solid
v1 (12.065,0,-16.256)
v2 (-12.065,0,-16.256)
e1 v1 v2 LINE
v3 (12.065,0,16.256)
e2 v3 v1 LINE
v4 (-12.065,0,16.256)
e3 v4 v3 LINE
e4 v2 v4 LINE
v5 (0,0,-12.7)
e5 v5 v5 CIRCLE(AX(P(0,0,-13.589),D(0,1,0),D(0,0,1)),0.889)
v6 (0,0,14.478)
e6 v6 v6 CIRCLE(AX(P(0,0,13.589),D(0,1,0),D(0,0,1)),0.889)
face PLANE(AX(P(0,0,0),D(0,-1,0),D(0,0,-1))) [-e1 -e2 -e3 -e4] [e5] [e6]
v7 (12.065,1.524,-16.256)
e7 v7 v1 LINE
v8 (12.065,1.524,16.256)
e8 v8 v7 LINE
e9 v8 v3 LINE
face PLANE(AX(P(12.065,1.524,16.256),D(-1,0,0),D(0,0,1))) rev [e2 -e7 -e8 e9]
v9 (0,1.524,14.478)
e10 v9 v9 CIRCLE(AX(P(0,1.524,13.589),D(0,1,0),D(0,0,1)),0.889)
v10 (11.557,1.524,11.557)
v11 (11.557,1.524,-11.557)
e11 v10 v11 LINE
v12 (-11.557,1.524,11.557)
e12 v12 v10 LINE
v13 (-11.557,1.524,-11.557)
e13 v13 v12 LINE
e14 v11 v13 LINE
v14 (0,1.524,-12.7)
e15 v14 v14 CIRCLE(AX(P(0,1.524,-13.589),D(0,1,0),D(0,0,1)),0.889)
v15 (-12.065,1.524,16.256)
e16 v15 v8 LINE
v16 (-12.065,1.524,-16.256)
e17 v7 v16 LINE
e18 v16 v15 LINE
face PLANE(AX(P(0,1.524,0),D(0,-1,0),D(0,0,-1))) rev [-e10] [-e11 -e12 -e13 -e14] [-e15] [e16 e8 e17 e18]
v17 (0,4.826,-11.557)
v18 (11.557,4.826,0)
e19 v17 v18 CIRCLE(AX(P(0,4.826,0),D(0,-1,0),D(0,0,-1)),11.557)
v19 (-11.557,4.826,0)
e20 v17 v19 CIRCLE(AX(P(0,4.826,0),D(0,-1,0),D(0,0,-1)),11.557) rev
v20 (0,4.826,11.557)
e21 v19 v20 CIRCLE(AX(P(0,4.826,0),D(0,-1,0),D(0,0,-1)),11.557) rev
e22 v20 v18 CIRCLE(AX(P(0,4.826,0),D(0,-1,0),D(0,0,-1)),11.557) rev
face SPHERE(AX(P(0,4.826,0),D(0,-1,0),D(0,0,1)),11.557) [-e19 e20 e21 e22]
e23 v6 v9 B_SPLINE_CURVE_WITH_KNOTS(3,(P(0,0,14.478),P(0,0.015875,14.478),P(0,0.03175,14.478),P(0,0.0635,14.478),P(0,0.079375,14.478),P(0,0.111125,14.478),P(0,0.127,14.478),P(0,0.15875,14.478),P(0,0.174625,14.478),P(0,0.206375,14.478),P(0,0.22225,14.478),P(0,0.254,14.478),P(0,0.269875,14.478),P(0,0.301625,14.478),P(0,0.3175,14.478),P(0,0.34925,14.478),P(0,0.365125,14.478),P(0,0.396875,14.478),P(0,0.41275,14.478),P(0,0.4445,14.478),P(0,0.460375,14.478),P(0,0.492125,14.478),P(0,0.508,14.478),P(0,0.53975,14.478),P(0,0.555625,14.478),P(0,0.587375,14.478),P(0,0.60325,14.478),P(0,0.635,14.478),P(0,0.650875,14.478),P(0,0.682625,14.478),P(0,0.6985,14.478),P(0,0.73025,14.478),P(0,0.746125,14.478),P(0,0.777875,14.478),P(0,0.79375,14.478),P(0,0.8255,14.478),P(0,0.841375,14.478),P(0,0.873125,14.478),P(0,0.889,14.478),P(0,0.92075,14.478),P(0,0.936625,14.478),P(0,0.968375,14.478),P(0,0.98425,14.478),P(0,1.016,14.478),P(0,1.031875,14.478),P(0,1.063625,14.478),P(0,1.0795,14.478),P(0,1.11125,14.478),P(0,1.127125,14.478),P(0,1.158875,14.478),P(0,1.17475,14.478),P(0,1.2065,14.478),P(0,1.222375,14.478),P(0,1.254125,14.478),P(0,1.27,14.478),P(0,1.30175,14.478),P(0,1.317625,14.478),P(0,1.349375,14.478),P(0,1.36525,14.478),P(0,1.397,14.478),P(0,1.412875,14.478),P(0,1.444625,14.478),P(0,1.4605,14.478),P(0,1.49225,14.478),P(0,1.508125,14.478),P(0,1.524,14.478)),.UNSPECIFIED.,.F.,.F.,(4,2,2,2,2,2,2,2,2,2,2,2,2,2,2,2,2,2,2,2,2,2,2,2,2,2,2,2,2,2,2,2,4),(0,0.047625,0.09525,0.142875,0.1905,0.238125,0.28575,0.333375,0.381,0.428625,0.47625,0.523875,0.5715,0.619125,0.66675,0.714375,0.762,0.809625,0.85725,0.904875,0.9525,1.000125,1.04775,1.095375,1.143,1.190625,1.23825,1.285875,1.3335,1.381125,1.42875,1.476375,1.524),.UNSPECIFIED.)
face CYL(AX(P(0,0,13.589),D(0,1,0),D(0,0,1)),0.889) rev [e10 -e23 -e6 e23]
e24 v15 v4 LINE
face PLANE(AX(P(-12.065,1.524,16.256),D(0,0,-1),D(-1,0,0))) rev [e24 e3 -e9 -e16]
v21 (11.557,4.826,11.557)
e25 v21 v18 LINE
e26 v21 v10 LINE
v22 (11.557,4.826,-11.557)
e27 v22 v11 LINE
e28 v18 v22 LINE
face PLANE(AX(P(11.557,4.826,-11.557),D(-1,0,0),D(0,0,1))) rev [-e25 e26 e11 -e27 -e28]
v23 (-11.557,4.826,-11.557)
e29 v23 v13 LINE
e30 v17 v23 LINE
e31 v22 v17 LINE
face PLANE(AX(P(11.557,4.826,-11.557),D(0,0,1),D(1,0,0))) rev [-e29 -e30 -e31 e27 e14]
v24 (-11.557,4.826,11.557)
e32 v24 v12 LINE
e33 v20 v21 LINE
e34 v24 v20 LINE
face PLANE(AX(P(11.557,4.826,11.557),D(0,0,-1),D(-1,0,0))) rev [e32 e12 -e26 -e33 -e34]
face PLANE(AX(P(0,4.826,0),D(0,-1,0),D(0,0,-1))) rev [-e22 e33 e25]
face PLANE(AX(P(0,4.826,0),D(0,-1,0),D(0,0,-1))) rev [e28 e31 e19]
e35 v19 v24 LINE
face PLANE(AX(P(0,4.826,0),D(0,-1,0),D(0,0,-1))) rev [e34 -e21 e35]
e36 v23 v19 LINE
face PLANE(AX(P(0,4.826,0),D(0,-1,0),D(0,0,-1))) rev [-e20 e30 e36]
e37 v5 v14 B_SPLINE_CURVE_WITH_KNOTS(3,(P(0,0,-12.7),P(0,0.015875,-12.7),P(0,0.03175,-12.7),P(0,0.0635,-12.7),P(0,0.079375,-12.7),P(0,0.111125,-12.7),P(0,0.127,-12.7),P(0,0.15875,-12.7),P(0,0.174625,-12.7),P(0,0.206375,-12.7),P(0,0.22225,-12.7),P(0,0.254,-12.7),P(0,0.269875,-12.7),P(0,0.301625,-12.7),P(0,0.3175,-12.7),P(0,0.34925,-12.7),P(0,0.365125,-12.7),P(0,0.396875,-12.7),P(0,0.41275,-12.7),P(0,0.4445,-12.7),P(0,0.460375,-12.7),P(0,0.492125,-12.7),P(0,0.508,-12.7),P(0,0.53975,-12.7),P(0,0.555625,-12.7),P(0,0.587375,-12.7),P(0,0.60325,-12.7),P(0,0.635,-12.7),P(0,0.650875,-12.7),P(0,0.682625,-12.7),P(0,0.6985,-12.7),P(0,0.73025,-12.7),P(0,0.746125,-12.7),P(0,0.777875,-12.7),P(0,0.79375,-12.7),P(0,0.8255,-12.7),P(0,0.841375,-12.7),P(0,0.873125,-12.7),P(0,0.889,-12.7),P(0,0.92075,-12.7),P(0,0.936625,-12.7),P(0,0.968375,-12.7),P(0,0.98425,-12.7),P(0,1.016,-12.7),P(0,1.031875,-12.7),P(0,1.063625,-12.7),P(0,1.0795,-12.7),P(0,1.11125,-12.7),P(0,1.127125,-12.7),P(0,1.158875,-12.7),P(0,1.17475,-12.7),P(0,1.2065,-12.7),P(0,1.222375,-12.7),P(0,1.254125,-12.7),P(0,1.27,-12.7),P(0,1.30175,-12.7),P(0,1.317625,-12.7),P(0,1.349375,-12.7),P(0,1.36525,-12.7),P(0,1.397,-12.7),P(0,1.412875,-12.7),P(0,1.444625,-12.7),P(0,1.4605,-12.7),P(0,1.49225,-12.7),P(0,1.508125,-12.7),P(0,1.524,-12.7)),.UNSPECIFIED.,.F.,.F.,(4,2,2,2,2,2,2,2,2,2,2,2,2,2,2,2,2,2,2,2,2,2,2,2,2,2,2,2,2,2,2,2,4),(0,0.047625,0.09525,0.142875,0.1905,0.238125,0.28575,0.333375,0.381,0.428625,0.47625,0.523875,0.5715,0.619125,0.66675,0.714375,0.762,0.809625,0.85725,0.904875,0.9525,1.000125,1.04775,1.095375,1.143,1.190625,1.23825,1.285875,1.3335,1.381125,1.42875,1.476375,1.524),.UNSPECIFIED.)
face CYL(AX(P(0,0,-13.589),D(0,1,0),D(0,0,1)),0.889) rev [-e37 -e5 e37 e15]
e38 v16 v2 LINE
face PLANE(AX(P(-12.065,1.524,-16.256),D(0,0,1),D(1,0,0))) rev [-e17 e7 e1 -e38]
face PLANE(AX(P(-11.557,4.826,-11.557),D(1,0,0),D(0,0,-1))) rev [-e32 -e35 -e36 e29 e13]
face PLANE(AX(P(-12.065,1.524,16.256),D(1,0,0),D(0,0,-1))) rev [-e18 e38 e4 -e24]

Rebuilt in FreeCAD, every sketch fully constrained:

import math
import FreeCAD as App
import Part
import Sketcher

V = App.Vector
Q = App.Units.Quantity

doc = App.newDocument("Part")
body = doc.addObject("PartDesign::Body", "Body")

# Sketch on XZ plane
sketch1 = body.newObject("Sketcher::SketchObject", "Sketch")
sketch1.AttachmentSupport = (doc.getObject("XZ_Plane"), [""])
sketch1.MapMode = "FlatFace"
sketch1.addGeometry(Part.LineSegment(V(-12.065, -16.256, 0), V(-12.065, 16.256, 0)), False)
sketch1.addGeometry(Part.LineSegment(V(-12.065, 16.256, 0), V(12.065, 16.256, 0)), False)
sketch1.addGeometry(Part.LineSegment(V(12.065, 16.256, 0), V(12.065, -16.256, 0)), False)
sketch1.addGeometry(Part.LineSegment(V(12.065, -16.256, 0), V(-12.065, -16.256, 0)), False)
sketch1.addConstraint(Sketcher.Constraint("Coincident", 0, 2, 1, 1))
sketch1.addConstraint(Sketcher.Constraint("Coincident", 1, 2, 2, 1))
sketch1.addConstraint(Sketcher.Constraint("Coincident", 2, 2, 3, 1))
sketch1.addConstraint(Sketcher.Constraint("Coincident", 3, 2, 0, 1))
sketch1.addConstraint(Sketcher.Constraint("Vertical", 0))
sketch1.addConstraint(Sketcher.Constraint("Horizontal", 1))
sketch1.addConstraint(Sketcher.Constraint("Vertical", 2))
sketch1.addConstraint(Sketcher.Constraint("Horizontal", 3))
sketch1.addConstraint(Sketcher.Constraint("Symmetric", 0, 2, 2, 2, -1, 1))
sketch1.addConstraint(Sketcher.Constraint("DistanceX", 1, 1, 1, 2, Q("0.95 in")))
sketch1.addConstraint(Sketcher.Constraint("DistanceY", 0, 1, 0, 2, Q("1.28 in")))
pad1 = body.newObject("PartDesign::Pad", "Pad")
pad1.Profile = sketch1
pad1.Length = Q("0.06 in")
pad1.Reversed = True

# Sketch on XZ plane
sketch2 = body.newObject("Sketcher::SketchObject", "Sketch001")
sketch2.AttachmentSupport = (doc.getObject("XZ_Plane"), [""])
sketch2.MapMode = "FlatFace"
sketch2.AttachmentOffset = App.Placement(V(0, 0, -0.06 * 25.4), App.Rotation())
sketch2.addGeometry(Part.LineSegment(V(-11.557, -11.557, 0), V(-11.557, 11.557, 0)), False)
sketch2.addGeometry(Part.LineSegment(V(-11.557, 11.557, 0), V(11.557, 11.557, 0)), False)
sketch2.addGeometry(Part.LineSegment(V(11.557, 11.557, 0), V(11.557, -11.557, 0)), False)
sketch2.addGeometry(Part.LineSegment(V(11.557, -11.557, 0), V(-11.557, -11.557, 0)), False)
sketch2.addConstraint(Sketcher.Constraint("Coincident", 0, 2, 1, 1))
sketch2.addConstraint(Sketcher.Constraint("Coincident", 1, 2, 2, 1))
sketch2.addConstraint(Sketcher.Constraint("Coincident", 2, 2, 3, 1))
sketch2.addConstraint(Sketcher.Constraint("Coincident", 3, 2, 0, 1))
sketch2.addConstraint(Sketcher.Constraint("Vertical", 0))
sketch2.addConstraint(Sketcher.Constraint("Horizontal", 1))
sketch2.addConstraint(Sketcher.Constraint("Vertical", 2))
sketch2.addConstraint(Sketcher.Constraint("Horizontal", 3))
sketch2.addConstraint(Sketcher.Constraint("Symmetric", 0, 2, 2, 2, -1, 1))
sketch2.addConstraint(Sketcher.Constraint("Equal", 3, 0))
sketch2.addConstraint(Sketcher.Constraint("DistanceX", 1, 1, 1, 2, Q("0.91 in")))
pad2 = body.newObject("PartDesign::Pad", "Pad001")
pad2.Profile = sketch2
pad2.Length = Q("0.13 in")
pad2.Reversed = True

# Sketch on YZ plane
sketch3 = body.newObject("Sketcher::SketchObject", "Sketch002")
sketch3.AttachmentSupport = (doc.getObject("YZ_Plane"), [""])
sketch3.MapMode = "FlatFace"
sketch3.addGeometry(Part.LineSegment(V(4.826, 0, 0), V(16.383, 0, 0)), False)
sketch3.addGeometry(Part.ArcOfCircle(Part.Circle(V(4.826, 0, 0), V(0, 0, 1), 11.557), math.radians(0), math.radians(90)), False)
sketch3.addGeometry(Part.LineSegment(V(4.826, 11.557, 0), V(4.826, 0, 0)), False)
sketch3.addConstraint(Sketcher.Constraint("Coincident", 0, 2, 1, 1))
sketch3.addConstraint(Sketcher.Constraint("Coincident", 1, 2, 2, 1))
sketch3.addConstraint(Sketcher.Constraint("Coincident", 2, 2, 0, 1))
sketch3.addConstraint(Sketcher.Constraint("Horizontal", 0))
sketch3.addConstraint(Sketcher.Constraint("Vertical", 2))
sketch3.addConstraint(Sketcher.Constraint("Coincident", 2, 2, 1, 3))
sketch3.addConstraint(Sketcher.Constraint("PointOnObject", 1, 3, -1))
sketch3.addConstraint(Sketcher.Constraint("Radius", 1, Q("0.455 in")))
sketch3.addConstraint(Sketcher.Constraint("DistanceX", -1, 1, 1, 3, Q("0.19 in")))
revolution = body.newObject("PartDesign::Revolution", "Revolution")
revolution.Profile = sketch3
revolution.ReferenceAxis = (sketch3, ["H_Axis"])
revolution.Angle = 360

# Sketch on XZ plane
sketch4 = body.newObject("Sketcher::SketchObject", "Sketch003")
sketch4.AttachmentSupport = (doc.getObject("XZ_Plane"), [""])
sketch4.MapMode = "FlatFace"
sketch4.AttachmentOffset = App.Placement(V(0, 0, -0.06 * 25.4), App.Rotation())
sketch4.addGeometry(Part.Circle(V(0, 13.589, 0), V(0, 0, 1), 0.889), False)
sketch4.addGeometry(Part.Circle(V(0, -13.589, 0), V(0, 0, 1), 0.889), False)
sketch4.addConstraint(Sketcher.Constraint("Equal", 0, 1))
sketch4.addConstraint(Sketcher.Constraint("Symmetric", 0, 3, 1, 3, -1, 1))
sketch4.addConstraint(Sketcher.Constraint("PointOnObject", 0, 3, -2))
sketch4.addConstraint(Sketcher.Constraint("Diameter", 0, Q("0.07 in")))
sketch4.addConstraint(Sketcher.Constraint("DistanceY", 1, 3, 0, 3, Q("1.07 in")))
pocket1 = body.newObject("PartDesign::Pocket", "Pocket")
pocket1.Profile = sketch4
pocket1.Type = "ThroughAll"
pocket1.Reversed = True

doc.recompute()
